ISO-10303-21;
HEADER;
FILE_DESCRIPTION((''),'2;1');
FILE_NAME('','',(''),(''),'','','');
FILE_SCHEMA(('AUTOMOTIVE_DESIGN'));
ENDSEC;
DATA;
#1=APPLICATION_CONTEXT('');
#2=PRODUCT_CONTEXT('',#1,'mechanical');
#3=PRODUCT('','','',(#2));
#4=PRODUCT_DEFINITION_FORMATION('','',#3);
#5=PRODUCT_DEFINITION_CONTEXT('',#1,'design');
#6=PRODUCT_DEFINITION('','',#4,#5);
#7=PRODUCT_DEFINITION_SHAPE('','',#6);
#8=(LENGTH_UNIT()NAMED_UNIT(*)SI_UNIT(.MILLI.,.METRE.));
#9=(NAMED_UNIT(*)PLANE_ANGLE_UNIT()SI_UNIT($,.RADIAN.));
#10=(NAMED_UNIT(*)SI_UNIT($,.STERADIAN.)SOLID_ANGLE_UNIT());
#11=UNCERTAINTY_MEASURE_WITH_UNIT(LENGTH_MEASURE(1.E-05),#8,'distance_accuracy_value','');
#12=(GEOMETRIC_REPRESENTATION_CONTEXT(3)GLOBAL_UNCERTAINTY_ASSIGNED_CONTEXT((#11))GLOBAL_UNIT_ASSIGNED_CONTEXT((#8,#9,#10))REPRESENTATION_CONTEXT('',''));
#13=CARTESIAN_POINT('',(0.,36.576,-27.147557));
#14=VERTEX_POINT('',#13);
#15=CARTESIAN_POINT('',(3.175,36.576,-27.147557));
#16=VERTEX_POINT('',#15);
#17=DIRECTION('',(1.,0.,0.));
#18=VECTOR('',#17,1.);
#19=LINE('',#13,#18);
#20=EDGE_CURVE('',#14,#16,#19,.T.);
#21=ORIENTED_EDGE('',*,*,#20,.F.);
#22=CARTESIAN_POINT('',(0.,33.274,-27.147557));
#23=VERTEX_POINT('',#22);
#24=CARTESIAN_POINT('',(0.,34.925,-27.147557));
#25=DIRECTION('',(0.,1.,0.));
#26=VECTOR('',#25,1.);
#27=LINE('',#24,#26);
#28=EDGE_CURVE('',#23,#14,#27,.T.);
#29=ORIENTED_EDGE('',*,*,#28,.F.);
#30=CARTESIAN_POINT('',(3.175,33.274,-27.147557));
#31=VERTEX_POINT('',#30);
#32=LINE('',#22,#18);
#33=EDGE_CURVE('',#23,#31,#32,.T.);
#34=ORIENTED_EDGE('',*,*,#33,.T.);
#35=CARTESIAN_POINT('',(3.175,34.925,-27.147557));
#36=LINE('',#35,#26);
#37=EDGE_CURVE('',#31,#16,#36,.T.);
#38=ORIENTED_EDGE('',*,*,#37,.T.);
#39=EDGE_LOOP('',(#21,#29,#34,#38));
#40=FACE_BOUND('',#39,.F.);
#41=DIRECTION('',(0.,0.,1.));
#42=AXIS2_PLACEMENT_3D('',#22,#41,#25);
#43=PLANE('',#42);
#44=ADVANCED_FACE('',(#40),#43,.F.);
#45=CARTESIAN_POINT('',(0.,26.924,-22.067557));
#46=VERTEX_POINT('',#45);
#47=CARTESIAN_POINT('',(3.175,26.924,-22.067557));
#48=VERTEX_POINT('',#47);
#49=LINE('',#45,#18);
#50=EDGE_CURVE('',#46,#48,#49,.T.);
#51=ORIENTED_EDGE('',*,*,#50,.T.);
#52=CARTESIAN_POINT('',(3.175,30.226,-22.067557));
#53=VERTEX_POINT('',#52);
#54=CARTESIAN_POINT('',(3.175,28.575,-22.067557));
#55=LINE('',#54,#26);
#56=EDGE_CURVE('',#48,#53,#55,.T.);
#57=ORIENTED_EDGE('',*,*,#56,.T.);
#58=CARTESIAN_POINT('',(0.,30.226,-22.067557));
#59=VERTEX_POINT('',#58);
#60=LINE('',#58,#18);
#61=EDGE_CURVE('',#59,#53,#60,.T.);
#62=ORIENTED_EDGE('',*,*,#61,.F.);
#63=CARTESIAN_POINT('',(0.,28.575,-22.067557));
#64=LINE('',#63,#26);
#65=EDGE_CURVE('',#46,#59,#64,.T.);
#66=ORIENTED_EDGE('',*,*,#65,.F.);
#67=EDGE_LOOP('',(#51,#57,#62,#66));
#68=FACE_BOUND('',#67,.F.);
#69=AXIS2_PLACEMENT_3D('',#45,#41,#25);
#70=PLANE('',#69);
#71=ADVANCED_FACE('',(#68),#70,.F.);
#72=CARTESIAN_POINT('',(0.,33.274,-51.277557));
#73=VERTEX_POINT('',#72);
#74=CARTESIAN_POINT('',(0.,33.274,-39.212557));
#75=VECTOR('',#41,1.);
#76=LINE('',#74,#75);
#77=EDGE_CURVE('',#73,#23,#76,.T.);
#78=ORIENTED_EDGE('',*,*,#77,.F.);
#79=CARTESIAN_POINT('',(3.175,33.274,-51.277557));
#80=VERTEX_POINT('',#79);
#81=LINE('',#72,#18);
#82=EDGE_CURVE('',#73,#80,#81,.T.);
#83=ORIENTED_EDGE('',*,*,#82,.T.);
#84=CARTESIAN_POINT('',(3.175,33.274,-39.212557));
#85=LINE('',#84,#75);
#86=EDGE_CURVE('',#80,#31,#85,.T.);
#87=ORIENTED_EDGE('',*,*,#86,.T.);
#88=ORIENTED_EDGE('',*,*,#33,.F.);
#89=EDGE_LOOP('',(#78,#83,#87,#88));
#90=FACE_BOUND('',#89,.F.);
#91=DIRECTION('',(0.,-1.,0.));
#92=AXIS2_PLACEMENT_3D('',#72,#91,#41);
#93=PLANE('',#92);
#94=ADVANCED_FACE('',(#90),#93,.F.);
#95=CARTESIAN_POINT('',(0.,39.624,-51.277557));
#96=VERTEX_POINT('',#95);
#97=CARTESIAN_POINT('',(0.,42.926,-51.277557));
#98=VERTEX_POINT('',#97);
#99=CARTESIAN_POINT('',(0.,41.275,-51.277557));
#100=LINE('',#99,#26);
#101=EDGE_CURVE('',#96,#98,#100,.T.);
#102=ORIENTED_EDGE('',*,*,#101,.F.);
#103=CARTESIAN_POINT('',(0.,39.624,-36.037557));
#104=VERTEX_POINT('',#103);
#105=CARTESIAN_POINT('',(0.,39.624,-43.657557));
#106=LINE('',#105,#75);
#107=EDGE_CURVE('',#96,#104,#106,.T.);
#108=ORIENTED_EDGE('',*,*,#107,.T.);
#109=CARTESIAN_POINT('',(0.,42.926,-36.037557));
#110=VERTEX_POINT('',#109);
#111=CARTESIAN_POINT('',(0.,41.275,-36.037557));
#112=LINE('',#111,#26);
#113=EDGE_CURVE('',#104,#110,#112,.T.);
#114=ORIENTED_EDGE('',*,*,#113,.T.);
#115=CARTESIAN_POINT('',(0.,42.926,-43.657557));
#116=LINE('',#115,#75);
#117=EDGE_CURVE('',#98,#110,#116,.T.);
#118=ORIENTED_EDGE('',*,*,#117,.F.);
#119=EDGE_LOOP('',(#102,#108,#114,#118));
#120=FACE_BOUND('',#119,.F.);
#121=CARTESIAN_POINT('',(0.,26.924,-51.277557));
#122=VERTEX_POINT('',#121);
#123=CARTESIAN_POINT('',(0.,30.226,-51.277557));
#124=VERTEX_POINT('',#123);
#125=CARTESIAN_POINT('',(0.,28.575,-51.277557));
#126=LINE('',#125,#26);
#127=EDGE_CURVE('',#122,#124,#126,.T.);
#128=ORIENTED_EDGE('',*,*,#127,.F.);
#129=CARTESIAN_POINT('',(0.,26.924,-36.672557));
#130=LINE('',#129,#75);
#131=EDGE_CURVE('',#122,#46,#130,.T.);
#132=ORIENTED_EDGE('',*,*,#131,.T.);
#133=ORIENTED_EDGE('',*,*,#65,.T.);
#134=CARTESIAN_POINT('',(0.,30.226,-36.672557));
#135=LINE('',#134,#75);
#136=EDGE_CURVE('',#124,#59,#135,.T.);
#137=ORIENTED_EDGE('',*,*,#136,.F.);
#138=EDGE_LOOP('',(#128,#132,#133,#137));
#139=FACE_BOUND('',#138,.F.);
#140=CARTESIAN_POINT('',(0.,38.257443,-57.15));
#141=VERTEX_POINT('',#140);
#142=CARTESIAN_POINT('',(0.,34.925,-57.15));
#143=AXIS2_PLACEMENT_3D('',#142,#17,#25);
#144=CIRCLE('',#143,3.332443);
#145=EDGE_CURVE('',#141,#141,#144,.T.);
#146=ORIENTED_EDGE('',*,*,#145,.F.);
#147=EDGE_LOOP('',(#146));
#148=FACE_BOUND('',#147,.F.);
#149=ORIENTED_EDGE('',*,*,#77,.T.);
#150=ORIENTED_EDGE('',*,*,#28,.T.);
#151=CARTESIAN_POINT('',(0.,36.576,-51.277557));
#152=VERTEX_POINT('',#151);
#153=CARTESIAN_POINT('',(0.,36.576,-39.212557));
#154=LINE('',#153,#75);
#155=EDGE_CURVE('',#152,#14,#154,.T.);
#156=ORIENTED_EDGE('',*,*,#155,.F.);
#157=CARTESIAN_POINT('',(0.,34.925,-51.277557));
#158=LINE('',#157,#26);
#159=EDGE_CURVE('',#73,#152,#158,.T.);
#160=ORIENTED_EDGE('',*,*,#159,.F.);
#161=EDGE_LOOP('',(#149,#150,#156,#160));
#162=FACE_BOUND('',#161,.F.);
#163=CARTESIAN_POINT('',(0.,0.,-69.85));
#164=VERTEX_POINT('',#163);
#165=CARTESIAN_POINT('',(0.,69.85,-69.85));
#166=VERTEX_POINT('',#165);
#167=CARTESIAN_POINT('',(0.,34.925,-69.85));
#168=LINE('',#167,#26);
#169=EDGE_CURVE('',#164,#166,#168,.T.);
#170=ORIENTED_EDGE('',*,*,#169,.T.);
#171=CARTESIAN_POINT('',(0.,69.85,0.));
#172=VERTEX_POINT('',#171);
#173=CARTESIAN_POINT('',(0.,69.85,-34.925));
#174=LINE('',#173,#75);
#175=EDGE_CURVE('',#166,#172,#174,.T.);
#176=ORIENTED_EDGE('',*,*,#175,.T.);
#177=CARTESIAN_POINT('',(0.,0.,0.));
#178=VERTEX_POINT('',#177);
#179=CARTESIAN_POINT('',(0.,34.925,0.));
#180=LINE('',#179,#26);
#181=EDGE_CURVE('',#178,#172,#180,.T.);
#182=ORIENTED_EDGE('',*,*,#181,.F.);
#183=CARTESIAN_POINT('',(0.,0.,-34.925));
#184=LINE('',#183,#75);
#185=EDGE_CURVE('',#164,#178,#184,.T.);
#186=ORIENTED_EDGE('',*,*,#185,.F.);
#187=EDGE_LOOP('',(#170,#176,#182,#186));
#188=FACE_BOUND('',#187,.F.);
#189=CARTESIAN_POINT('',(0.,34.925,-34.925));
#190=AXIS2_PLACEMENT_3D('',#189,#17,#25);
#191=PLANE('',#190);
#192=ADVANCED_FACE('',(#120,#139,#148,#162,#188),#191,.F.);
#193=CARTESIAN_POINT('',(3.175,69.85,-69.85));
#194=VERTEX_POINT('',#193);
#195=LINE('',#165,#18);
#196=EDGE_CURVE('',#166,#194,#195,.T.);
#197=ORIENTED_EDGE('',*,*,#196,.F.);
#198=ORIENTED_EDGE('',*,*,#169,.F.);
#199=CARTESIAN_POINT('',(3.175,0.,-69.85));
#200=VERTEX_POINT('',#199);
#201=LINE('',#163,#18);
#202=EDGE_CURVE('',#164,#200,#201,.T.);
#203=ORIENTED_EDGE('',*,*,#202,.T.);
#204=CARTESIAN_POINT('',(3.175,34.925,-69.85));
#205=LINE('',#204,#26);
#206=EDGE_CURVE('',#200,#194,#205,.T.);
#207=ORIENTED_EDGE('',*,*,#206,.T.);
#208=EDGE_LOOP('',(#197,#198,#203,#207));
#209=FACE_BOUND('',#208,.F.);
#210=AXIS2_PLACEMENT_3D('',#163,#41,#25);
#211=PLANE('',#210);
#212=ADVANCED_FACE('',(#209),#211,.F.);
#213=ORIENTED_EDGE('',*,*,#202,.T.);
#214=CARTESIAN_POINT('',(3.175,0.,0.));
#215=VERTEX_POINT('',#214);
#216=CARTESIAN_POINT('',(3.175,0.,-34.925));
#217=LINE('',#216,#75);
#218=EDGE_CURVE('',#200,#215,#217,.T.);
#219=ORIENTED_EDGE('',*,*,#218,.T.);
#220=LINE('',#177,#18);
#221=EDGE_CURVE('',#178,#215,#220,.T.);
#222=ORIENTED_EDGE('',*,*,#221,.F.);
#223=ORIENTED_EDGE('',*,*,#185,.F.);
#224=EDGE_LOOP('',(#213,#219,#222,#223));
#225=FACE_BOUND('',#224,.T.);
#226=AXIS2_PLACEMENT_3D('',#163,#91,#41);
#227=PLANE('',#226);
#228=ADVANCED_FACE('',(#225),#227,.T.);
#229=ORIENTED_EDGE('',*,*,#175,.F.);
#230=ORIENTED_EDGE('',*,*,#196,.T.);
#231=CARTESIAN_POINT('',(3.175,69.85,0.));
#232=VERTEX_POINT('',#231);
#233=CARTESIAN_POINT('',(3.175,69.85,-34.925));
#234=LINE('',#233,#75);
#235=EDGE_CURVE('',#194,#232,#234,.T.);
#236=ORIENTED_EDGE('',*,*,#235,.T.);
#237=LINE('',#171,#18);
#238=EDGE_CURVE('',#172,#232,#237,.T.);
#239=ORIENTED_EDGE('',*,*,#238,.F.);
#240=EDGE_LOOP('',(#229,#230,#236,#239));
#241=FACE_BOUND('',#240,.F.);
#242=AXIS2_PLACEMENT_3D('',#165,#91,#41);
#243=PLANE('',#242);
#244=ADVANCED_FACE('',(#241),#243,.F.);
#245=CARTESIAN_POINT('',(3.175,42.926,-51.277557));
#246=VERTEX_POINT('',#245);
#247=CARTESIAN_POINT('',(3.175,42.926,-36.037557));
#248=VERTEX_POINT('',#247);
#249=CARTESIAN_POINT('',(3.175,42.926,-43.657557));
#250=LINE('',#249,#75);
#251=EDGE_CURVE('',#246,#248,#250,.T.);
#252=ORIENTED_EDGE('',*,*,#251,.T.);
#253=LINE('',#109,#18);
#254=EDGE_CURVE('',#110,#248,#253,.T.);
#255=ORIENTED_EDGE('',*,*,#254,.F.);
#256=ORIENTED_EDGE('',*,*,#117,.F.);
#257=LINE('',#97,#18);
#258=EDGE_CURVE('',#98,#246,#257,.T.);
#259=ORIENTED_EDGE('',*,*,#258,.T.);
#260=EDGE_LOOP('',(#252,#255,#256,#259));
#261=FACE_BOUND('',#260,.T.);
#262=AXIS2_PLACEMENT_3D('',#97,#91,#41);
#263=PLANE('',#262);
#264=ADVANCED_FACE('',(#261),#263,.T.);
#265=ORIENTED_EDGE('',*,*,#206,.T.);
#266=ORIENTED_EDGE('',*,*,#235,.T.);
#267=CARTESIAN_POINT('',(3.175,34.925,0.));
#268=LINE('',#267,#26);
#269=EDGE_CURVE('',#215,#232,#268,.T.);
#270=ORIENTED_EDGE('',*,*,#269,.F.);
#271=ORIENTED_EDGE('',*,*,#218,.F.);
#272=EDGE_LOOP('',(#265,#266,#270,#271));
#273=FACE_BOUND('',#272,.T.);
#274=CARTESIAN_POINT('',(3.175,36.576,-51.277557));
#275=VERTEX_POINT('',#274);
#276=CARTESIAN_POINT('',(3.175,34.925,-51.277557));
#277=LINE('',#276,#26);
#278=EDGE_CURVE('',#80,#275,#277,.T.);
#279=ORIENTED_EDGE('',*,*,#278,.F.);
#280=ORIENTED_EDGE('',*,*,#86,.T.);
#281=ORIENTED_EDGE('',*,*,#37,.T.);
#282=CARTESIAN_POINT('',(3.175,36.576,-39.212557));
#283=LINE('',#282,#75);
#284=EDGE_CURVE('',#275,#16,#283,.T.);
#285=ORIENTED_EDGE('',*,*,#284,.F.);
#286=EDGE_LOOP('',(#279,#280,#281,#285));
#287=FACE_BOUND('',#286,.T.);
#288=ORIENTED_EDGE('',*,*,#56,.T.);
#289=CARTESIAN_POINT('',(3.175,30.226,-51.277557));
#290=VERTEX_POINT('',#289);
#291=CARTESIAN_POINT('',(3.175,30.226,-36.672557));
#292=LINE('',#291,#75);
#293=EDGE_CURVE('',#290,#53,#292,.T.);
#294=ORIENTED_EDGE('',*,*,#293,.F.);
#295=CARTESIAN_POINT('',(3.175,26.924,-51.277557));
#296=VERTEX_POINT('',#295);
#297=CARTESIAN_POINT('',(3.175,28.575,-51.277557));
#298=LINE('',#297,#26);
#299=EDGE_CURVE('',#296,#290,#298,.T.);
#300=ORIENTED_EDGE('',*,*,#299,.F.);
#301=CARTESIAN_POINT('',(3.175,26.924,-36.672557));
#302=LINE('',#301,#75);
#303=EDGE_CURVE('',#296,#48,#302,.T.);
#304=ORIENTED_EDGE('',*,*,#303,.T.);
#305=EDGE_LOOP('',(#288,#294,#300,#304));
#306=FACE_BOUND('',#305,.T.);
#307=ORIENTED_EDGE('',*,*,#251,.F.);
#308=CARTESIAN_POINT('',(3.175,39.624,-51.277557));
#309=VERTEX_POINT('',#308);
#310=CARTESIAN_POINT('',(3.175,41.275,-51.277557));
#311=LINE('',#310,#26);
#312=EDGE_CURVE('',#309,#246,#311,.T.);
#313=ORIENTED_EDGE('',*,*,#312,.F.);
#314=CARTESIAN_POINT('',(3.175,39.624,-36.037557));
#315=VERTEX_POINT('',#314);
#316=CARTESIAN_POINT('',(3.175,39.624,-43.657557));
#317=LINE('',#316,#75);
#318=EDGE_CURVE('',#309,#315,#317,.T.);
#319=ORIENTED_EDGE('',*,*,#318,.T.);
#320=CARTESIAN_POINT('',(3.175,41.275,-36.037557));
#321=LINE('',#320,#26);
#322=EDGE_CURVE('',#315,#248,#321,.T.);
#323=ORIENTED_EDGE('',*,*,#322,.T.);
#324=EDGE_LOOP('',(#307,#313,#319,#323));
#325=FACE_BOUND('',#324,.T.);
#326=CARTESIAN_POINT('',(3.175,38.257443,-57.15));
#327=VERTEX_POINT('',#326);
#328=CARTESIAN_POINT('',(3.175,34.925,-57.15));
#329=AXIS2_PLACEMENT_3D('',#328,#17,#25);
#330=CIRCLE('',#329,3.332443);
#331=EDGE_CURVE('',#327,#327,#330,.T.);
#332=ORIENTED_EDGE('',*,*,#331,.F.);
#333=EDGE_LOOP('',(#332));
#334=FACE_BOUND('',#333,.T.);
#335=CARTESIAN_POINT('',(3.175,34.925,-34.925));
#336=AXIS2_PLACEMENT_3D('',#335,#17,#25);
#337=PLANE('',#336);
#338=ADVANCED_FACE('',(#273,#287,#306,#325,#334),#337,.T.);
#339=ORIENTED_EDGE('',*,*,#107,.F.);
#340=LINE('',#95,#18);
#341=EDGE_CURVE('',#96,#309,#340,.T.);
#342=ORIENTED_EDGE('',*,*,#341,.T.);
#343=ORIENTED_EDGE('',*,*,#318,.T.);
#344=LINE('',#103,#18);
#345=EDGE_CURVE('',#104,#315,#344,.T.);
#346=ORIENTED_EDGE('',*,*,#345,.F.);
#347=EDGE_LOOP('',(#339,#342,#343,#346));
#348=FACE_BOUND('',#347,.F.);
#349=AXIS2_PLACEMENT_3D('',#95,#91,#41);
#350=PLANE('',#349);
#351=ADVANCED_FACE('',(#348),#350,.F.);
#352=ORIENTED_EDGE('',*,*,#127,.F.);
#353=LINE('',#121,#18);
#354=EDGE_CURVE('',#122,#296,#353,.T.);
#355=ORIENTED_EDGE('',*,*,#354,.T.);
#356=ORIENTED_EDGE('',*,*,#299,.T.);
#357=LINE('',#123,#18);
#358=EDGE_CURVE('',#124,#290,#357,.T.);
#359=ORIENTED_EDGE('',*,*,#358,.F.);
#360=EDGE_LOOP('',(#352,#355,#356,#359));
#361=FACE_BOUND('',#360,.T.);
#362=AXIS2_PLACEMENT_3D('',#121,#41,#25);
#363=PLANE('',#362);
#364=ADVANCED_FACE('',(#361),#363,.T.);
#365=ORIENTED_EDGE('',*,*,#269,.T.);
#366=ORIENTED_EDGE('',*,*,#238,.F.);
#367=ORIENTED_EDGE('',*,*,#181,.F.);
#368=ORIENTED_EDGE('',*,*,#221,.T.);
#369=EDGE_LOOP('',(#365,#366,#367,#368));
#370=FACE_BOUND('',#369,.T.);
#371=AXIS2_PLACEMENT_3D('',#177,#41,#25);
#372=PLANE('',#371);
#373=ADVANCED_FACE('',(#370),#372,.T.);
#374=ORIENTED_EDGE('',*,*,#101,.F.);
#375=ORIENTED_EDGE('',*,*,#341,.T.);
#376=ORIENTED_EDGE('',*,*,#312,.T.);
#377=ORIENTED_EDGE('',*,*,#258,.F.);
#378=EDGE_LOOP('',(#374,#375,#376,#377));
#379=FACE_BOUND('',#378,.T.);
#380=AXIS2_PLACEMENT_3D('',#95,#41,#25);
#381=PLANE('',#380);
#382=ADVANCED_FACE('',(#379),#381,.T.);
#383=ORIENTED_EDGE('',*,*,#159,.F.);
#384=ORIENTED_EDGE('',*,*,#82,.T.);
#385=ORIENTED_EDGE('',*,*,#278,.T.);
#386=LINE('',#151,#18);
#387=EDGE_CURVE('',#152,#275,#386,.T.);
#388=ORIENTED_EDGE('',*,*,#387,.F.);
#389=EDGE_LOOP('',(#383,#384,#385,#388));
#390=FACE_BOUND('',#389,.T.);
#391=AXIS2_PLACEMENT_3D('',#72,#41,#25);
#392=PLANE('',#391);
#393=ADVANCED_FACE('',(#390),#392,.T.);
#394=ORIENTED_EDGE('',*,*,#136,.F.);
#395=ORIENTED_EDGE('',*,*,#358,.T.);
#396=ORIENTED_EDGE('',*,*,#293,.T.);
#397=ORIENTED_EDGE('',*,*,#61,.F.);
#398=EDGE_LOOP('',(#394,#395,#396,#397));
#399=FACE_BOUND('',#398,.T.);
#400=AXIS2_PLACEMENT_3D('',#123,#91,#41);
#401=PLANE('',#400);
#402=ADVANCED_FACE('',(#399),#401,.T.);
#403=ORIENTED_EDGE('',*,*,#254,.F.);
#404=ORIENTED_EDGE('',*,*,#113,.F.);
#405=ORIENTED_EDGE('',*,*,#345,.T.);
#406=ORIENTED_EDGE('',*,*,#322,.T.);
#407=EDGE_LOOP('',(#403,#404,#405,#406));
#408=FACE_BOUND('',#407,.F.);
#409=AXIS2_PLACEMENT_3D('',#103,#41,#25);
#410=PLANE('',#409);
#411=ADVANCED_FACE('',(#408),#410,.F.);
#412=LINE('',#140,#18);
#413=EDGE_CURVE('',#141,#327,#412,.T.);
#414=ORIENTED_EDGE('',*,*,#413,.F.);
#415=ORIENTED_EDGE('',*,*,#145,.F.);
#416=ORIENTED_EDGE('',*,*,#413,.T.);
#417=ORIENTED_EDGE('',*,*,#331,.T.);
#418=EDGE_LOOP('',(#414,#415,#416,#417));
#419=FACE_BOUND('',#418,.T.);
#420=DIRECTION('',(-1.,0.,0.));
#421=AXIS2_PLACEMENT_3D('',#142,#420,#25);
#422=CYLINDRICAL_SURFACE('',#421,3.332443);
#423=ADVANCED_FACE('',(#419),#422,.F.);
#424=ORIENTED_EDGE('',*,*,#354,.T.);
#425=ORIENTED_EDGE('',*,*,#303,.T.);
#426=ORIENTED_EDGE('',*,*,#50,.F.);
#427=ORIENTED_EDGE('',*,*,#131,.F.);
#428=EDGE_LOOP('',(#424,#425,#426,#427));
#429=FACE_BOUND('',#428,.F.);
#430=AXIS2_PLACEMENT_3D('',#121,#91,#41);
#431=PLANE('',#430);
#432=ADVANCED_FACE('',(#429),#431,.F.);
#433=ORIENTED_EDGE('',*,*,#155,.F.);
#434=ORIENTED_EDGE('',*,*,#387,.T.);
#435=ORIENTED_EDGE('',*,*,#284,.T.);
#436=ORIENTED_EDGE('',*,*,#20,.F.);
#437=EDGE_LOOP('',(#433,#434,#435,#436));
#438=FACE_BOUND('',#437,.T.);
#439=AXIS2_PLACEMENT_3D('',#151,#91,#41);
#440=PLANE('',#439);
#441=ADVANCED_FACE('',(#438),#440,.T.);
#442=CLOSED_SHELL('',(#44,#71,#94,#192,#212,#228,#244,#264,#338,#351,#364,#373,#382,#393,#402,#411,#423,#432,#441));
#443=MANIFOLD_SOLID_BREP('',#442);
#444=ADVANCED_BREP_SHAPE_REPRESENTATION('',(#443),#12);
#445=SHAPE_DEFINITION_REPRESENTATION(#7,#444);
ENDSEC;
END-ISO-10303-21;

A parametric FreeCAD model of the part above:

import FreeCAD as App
import Part
import Sketcher
Q = App.Units.Quantity

doc = App.newDocument("Part")
body = doc.addObject("PartDesign::Body", "Body")

# Sketch on YZ plane
sketch1 = body.newObject("Sketcher::SketchObject", "Sketch")
sketch1.AttachmentSupport = (doc.getObject("YZ_Plane"), [""])
sketch1.MapMode = "FlatFace"
sketch1.addGeometry([
    Part.LineSegment(App.Vector(0, 0, 0), App.Vector(0, -69.8, 0)),  # 0
    Part.LineSegment(App.Vector(0, -69.8, 0), App.Vector(69.8, -69.8, 0)),  # 1
    Part.LineSegment(App.Vector(69.8, -69.8, 0), App.Vector(69.8, 0, 0)),  # 2
    Part.LineSegment(App.Vector(69.8, 0, 0), App.Vector(0, 0, 0)),  # 3
    Part.Circle(App.Vector(34.9, -57.1, 0), App.Vector(0, 0, 1), 3.3),  # 4
    Part.LineSegment(App.Vector(42.9, -51.3, 0), App.Vector(39.6, -51.3, 0)),  # 5
    Part.LineSegment(App.Vector(39.6, -51.3, 0), App.Vector(39.6, -36, 0)),  # 6
    Part.LineSegment(App.Vector(39.6, -36, 0), App.Vector(42.9, -36, 0)),  # 7
    Part.LineSegment(App.Vector(42.9, -36, 0), App.Vector(42.9, -51.3, 0)),  # 8
    Part.LineSegment(App.Vector(30.2, -51.3, 0), App.Vector(26.9, -51.3, 0)),  # 9
    Part.LineSegment(App.Vector(26.9, -51.3, 0), App.Vector(26.9, -22.1, 0)),  # 10
    Part.LineSegment(App.Vector(26.9, -22.1, 0), App.Vector(30.2, -22.1, 0)),  # 11
    Part.LineSegment(App.Vector(30.2, -22.1, 0), App.Vector(30.2, -51.3, 0)),  # 12
    Part.LineSegment(App.Vector(36.6, -51.3, 0), App.Vector(33.3, -51.3, 0)),  # 13
    Part.LineSegment(App.Vector(33.3, -51.3, 0), App.Vector(33.3, -27.1, 0)),  # 14
    Part.LineSegment(App.Vector(33.3, -27.1, 0), App.Vector(36.6, -27.1, 0)),  # 15
    Part.LineSegment(App.Vector(36.6, -27.1, 0), App.Vector(36.6, -51.3, 0)),  # 16
], False)
sketch1.addConstraint([
    Sketcher.Constraint("Coincident", 0, 2, 1, 1),
    Sketcher.Constraint("Coincident", 1, 2, 2, 1),
    Sketcher.Constraint("Coincident", 2, 2, 3, 1),
    Sketcher.Constraint("Coincident", 3, 2, 0, 1),
    Sketcher.Constraint("Coincident", 5, 2, 6, 1),
    Sketcher.Constraint("Coincident", 6, 2, 7, 1),
    Sketcher.Constraint("Coincident", 7, 2, 8, 1),
    Sketcher.Constraint("Coincident", 8, 2, 5, 1),
    Sketcher.Constraint("Coincident", 9, 2, 10, 1),
    Sketcher.Constraint("Coincident", 10, 2, 11, 1),
    Sketcher.Constraint("Coincident", 11, 2, 12, 1),
    Sketcher.Constraint("Coincident", 12, 2, 9, 1),
    Sketcher.Constraint("Coincident", 13, 2, 14, 1),
    Sketcher.Constraint("Coincident", 14, 2, 15, 1),
    Sketcher.Constraint("Coincident", 15, 2, 16, 1),
    Sketcher.Constraint("Coincident", 16, 2, 13, 1),
    Sketcher.Constraint("Vertical", 0),
    Sketcher.Constraint("Horizontal", 1),
    Sketcher.Constraint("Vertical", 2),
    Sketcher.Constraint("Horizontal", 3),
    Sketcher.Constraint("Horizontal", 5),
    Sketcher.Constraint("Vertical", 6),
    Sketcher.Constraint("Horizontal", 7),
    Sketcher.Constraint("Vertical", 8),
    Sketcher.Constraint("Horizontal", 9),
    Sketcher.Constraint("Vertical", 10),
    Sketcher.Constraint("Horizontal", 11),
    Sketcher.Constraint("Vertical", 12),
    Sketcher.Constraint("Horizontal", 13),
    Sketcher.Constraint("Vertical", 14),
    Sketcher.Constraint("Horizontal", 15),
    Sketcher.Constraint("Vertical", 16),
    Sketcher.Constraint("Coincident", 3, 2, -1, 1),
    Sketcher.Constraint("Horizontal", 8, 2, 9, 2),
    Sketcher.Constraint("Horizontal", 12, 2, 13, 2),
    Sketcher.Constraint("Equal", 7, 9),
    Sketcher.Constraint("Equal", 11, 13),
    Sketcher.Constraint("Equal", 3, 0),
    Sketcher.Constraint("DistanceY", 6, 1, 6, 2, Q("0.6 in")),
    Sketcher.Constraint("DistanceX", 1, 1, 1, 2, Q("2.75 in")),
    Sketcher.Constraint("DistanceX", 5, 2, 5, 1, Q("0.13 in")),
    Sketcher.Constraint("DistanceY", 10, 1, 10, 2, Q("1.15 in")),
    Sketcher.Constraint("DistanceY", 14, 1, 14, 2, Q("0.95 in")),
    Sketcher.Constraint("DistanceY", 0, 2, 4, 3, Q("0.5 in")),
    Sketcher.Constraint("DistanceX", 9, 2, 5, 2, Q("0.5 in")),
    Sketcher.Constraint("DistanceX", -1, 1, 5, 2, Q("1.56 in")),
    Sketcher.Constraint("DistanceX", -1, 1, 13, 2, Q("1.31 in")),
    Sketcher.Constraint("DistanceX", -1, 1, 4, 3, Q("1.375 in")),
    Sketcher.Constraint("Diameter", 4, Q("6.664886 mm")),
    Sketcher.Constraint("DistanceY", 5, 2, -1, 1, Q("51.277557 mm")),
])
pad1 = body.newObject("PartDesign::Pad", "Pad")
pad1.Profile = sketch1
pad1.Length = Q("0.125 in")

doc.recompute()
